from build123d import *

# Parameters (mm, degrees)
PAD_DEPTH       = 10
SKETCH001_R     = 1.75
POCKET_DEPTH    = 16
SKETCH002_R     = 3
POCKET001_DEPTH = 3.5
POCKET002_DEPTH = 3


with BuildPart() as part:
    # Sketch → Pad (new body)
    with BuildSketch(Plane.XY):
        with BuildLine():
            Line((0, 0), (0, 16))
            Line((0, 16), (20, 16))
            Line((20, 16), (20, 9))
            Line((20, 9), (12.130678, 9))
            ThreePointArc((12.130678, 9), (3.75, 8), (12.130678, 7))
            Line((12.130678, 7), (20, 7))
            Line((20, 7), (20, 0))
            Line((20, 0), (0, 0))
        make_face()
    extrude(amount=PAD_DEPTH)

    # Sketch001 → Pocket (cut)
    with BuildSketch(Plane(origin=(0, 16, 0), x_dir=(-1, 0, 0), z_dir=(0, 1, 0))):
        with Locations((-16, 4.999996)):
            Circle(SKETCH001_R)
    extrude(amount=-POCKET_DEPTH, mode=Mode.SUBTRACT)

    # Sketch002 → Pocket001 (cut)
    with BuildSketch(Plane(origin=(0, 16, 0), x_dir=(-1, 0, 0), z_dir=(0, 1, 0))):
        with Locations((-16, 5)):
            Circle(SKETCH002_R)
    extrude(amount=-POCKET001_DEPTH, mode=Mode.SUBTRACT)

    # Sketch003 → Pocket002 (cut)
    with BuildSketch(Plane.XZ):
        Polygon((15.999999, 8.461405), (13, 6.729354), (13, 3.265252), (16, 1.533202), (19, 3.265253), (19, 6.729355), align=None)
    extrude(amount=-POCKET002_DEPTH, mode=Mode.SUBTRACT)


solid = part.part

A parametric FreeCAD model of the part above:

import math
import FreeCAD as App
import Part
import Sketcher
from FreeCAD import Vector
Q = App.Units.Quantity


def add_polygon(sketch, points):
    """Adds a closed chain of lines whose ends are joined by coincident constraints."""
    first, n = sketch.GeometryCount, len(points)
    for a, b in zip(points, points[1:] + points[:1]):
        sketch.addGeometry(Part.LineSegment(App.Vector(*a, 0), App.Vector(*b, 0)), False)
    for i in range(n):
        sketch.addConstraint(Sketcher.Constraint("Coincident", first + i, 2, first + (i + 1) % n, 1))

doc = App.newDocument("Part")
body = doc.addObject("PartDesign::Body", "Body")

sketch1 = body.newObject("Sketcher::SketchObject", "Sketch")
sketch1.AttachmentSupport = (doc.getObject("XY_Plane"), [""])
sketch1.MapMode = "FlatFace"
sketch1.addGeometry([
    Part.LineSegment(Vector(0, 16, 0), Vector(0, 0, 0)),
    Part.LineSegment(Vector(0, 0, 0), Vector(20, 0, 0)),
    Part.LineSegment(Vector(20, 0, 0), Vector(20, 7, 0)),
    Part.LineSegment(Vector(20, 7, 0), Vector(12.1, 7, 0)),
    Part.ArcOfCircle(Part.Circle(Vector(8, 8, 0), Vector(0, 0, 1), 4.3), math.radians(14), math.radians(346)),
    Part.LineSegment(Vector(12.1, 9, 0), Vector(20, 9, 0)),
    Part.LineSegment(Vector(20, 9, 0), Vector(20, 16, 0)),
    Part.LineSegment(Vector(20, 16, 0), Vector(0, 16, 0)),
], False)
sketch1.addConstraint([
    Sketcher.Constraint("Coincident", 0, 2, 1, 1),
    Sketcher.Constraint("Coincident", 1, 2, 2, 1),
    Sketcher.Constraint("Coincident", 2, 2, 3, 1),
    Sketcher.Constraint("Coincident", 3, 2, 4, 2),
    Sketcher.Constraint("Coincident", 4, 1, 5, 1),
    Sketcher.Constraint("Coincident", 5, 2, 6, 1),
    Sketcher.Constraint("Coincident", 6, 2, 7, 1),
    Sketcher.Constraint("Coincident", 7, 2, 0, 1),
    Sketcher.Constraint("Vertical", 0),
    Sketcher.Constraint("Horizontal", 1),
    Sketcher.Constraint("Vertical", 2),
    Sketcher.Constraint("Horizontal", 3),
    Sketcher.Constraint("Horizontal", 5),
    Sketcher.Constraint("Vertical", 6),
    Sketcher.Constraint("Horizontal", 7),
    Sketcher.Constraint("Coincident", 0, 2, -1, 1),
    Sketcher.Constraint("Vertical", 3, 2, 4, 1),
    Sketcher.Constraint("Vertical", 2, 2, 5, 2),
    Sketcher.Constraint("Equal", 2, 6),
    Sketcher.Constraint("DistanceX", 1, 1, 1, 2, 20.0),
    Sketcher.Constraint("DistanceY", 0, 2, 0, 1, 16.0),
    Sketcher.Constraint("DistanceY", 2, 1, 2, 2, 7.0),
    Sketcher.Constraint("Radius", 4, 4.25),
    Sketcher.Constraint("DistanceX", -1, 1, 4, 3, 8.0),
])
pad1 = body.newObject("PartDesign::Pad", "Pad")
pad1.Profile = sketch1
pad1.Length = 10

sketch2 = body.newObject("Sketcher::SketchObject", "Sketch001")
sketch2.AttachmentSupport = (doc.getObject("XZ_Plane"), [""])
sketch2.MapMode = "FlatFace"
sketch2.AttachmentOffset = App.Placement(Vector(0, 0, -16), App.Rotation())
sketch2.addGeometry(Part.Circle(Vector(16, 5, 0), Vector(0, 0, 1), 1.8), False)
sketch2.addConstraint([
    Sketcher.Constraint("Diameter", 0, 3.5),
    Sketcher.Constraint("DistanceX", -1, 1, 0, 3, 16.0),
    Sketcher.Constraint("DistanceY", -1, 1, 0, 3, 4.999996),
])
pocket1 = body.newObject("PartDesign::Pocket", "Pocket")
pocket1.Profile = sketch2
pocket1.Length = 16
pocket1.Reversed = True

sketch3 = body.newObject("Sketcher::SketchObject", "Sketch002")
sketch3.AttachmentSupport = (doc.getObject("XZ_Plane"), [""])
sketch3.MapMode = "FlatFace"
sketch3.AttachmentOffset = App.Placement(Vector(0, 0, -16), App.Rotation())
sketch3.addGeometry(Part.Circle(Vector(16, 5, 0), Vector(0, 0, 1), 3), False)
sketch3.addConstraint([
    Sketcher.Constraint("Diameter", 0, 6.0),
    Sketcher.Constraint("DistanceX", -1, 1, 0, 3, 16.0),
    Sketcher.Constraint("DistanceY", -1, 1, 0, 3, 5.0),
])
pocket2 = body.newObject("PartDesign::Pocket", "Pocket001")
pocket2.Profile = sketch3
pocket2.Length = 3.5
pocket2.Reversed = True

sketch4 = body.newObject("Sketcher::SketchObject", "Sketch003")
sketch4.AttachmentSupport = (doc.getObject("XZ_Plane"), [""])
sketch4.MapMode = "FlatFace"
add_polygon(sketch4, [(16, 8.5), (13, 6.7), (13, 3.3), (16, 1.5), (19, 3.3), (19, 6.7)])
sketch4.addConstraint([
    Sketcher.Constraint("Vertical", 1),
    Sketcher.Constraint("Vertical", 4),
    Sketcher.Constraint("Parallel", 0, 3),
    Sketcher.Constraint("Parallel", 2, 5),
    Sketcher.Constraint("Horizontal", 1, 2, 3, 2),
    Sketcher.Constraint("Horizontal", 0, 2, 4, 2),
    Sketcher.Constraint("Vertical", 2, 2, 5, 2),
    Sketcher.Constraint("Angle", 0, Q("-149.999989 deg")),
    Sketcher.Constraint("DistanceX", -1, 1, 0, 2, 13.0),
    Sketcher.Constraint("DistanceX", -1, 1, 2, 2, 16.0),
    Sketcher.Constraint("DistanceY", 1, 2, 1, 1, 3.464102),
    Sketcher.Constraint("DistanceY", -1, 1, 1, 2, 3.265252),
])
pocket3 = body.newObject("PartDesign::Pocket", "Pocket002")
pocket3.Profile = sketch4
pocket3.Length = 3

doc.recompute()
